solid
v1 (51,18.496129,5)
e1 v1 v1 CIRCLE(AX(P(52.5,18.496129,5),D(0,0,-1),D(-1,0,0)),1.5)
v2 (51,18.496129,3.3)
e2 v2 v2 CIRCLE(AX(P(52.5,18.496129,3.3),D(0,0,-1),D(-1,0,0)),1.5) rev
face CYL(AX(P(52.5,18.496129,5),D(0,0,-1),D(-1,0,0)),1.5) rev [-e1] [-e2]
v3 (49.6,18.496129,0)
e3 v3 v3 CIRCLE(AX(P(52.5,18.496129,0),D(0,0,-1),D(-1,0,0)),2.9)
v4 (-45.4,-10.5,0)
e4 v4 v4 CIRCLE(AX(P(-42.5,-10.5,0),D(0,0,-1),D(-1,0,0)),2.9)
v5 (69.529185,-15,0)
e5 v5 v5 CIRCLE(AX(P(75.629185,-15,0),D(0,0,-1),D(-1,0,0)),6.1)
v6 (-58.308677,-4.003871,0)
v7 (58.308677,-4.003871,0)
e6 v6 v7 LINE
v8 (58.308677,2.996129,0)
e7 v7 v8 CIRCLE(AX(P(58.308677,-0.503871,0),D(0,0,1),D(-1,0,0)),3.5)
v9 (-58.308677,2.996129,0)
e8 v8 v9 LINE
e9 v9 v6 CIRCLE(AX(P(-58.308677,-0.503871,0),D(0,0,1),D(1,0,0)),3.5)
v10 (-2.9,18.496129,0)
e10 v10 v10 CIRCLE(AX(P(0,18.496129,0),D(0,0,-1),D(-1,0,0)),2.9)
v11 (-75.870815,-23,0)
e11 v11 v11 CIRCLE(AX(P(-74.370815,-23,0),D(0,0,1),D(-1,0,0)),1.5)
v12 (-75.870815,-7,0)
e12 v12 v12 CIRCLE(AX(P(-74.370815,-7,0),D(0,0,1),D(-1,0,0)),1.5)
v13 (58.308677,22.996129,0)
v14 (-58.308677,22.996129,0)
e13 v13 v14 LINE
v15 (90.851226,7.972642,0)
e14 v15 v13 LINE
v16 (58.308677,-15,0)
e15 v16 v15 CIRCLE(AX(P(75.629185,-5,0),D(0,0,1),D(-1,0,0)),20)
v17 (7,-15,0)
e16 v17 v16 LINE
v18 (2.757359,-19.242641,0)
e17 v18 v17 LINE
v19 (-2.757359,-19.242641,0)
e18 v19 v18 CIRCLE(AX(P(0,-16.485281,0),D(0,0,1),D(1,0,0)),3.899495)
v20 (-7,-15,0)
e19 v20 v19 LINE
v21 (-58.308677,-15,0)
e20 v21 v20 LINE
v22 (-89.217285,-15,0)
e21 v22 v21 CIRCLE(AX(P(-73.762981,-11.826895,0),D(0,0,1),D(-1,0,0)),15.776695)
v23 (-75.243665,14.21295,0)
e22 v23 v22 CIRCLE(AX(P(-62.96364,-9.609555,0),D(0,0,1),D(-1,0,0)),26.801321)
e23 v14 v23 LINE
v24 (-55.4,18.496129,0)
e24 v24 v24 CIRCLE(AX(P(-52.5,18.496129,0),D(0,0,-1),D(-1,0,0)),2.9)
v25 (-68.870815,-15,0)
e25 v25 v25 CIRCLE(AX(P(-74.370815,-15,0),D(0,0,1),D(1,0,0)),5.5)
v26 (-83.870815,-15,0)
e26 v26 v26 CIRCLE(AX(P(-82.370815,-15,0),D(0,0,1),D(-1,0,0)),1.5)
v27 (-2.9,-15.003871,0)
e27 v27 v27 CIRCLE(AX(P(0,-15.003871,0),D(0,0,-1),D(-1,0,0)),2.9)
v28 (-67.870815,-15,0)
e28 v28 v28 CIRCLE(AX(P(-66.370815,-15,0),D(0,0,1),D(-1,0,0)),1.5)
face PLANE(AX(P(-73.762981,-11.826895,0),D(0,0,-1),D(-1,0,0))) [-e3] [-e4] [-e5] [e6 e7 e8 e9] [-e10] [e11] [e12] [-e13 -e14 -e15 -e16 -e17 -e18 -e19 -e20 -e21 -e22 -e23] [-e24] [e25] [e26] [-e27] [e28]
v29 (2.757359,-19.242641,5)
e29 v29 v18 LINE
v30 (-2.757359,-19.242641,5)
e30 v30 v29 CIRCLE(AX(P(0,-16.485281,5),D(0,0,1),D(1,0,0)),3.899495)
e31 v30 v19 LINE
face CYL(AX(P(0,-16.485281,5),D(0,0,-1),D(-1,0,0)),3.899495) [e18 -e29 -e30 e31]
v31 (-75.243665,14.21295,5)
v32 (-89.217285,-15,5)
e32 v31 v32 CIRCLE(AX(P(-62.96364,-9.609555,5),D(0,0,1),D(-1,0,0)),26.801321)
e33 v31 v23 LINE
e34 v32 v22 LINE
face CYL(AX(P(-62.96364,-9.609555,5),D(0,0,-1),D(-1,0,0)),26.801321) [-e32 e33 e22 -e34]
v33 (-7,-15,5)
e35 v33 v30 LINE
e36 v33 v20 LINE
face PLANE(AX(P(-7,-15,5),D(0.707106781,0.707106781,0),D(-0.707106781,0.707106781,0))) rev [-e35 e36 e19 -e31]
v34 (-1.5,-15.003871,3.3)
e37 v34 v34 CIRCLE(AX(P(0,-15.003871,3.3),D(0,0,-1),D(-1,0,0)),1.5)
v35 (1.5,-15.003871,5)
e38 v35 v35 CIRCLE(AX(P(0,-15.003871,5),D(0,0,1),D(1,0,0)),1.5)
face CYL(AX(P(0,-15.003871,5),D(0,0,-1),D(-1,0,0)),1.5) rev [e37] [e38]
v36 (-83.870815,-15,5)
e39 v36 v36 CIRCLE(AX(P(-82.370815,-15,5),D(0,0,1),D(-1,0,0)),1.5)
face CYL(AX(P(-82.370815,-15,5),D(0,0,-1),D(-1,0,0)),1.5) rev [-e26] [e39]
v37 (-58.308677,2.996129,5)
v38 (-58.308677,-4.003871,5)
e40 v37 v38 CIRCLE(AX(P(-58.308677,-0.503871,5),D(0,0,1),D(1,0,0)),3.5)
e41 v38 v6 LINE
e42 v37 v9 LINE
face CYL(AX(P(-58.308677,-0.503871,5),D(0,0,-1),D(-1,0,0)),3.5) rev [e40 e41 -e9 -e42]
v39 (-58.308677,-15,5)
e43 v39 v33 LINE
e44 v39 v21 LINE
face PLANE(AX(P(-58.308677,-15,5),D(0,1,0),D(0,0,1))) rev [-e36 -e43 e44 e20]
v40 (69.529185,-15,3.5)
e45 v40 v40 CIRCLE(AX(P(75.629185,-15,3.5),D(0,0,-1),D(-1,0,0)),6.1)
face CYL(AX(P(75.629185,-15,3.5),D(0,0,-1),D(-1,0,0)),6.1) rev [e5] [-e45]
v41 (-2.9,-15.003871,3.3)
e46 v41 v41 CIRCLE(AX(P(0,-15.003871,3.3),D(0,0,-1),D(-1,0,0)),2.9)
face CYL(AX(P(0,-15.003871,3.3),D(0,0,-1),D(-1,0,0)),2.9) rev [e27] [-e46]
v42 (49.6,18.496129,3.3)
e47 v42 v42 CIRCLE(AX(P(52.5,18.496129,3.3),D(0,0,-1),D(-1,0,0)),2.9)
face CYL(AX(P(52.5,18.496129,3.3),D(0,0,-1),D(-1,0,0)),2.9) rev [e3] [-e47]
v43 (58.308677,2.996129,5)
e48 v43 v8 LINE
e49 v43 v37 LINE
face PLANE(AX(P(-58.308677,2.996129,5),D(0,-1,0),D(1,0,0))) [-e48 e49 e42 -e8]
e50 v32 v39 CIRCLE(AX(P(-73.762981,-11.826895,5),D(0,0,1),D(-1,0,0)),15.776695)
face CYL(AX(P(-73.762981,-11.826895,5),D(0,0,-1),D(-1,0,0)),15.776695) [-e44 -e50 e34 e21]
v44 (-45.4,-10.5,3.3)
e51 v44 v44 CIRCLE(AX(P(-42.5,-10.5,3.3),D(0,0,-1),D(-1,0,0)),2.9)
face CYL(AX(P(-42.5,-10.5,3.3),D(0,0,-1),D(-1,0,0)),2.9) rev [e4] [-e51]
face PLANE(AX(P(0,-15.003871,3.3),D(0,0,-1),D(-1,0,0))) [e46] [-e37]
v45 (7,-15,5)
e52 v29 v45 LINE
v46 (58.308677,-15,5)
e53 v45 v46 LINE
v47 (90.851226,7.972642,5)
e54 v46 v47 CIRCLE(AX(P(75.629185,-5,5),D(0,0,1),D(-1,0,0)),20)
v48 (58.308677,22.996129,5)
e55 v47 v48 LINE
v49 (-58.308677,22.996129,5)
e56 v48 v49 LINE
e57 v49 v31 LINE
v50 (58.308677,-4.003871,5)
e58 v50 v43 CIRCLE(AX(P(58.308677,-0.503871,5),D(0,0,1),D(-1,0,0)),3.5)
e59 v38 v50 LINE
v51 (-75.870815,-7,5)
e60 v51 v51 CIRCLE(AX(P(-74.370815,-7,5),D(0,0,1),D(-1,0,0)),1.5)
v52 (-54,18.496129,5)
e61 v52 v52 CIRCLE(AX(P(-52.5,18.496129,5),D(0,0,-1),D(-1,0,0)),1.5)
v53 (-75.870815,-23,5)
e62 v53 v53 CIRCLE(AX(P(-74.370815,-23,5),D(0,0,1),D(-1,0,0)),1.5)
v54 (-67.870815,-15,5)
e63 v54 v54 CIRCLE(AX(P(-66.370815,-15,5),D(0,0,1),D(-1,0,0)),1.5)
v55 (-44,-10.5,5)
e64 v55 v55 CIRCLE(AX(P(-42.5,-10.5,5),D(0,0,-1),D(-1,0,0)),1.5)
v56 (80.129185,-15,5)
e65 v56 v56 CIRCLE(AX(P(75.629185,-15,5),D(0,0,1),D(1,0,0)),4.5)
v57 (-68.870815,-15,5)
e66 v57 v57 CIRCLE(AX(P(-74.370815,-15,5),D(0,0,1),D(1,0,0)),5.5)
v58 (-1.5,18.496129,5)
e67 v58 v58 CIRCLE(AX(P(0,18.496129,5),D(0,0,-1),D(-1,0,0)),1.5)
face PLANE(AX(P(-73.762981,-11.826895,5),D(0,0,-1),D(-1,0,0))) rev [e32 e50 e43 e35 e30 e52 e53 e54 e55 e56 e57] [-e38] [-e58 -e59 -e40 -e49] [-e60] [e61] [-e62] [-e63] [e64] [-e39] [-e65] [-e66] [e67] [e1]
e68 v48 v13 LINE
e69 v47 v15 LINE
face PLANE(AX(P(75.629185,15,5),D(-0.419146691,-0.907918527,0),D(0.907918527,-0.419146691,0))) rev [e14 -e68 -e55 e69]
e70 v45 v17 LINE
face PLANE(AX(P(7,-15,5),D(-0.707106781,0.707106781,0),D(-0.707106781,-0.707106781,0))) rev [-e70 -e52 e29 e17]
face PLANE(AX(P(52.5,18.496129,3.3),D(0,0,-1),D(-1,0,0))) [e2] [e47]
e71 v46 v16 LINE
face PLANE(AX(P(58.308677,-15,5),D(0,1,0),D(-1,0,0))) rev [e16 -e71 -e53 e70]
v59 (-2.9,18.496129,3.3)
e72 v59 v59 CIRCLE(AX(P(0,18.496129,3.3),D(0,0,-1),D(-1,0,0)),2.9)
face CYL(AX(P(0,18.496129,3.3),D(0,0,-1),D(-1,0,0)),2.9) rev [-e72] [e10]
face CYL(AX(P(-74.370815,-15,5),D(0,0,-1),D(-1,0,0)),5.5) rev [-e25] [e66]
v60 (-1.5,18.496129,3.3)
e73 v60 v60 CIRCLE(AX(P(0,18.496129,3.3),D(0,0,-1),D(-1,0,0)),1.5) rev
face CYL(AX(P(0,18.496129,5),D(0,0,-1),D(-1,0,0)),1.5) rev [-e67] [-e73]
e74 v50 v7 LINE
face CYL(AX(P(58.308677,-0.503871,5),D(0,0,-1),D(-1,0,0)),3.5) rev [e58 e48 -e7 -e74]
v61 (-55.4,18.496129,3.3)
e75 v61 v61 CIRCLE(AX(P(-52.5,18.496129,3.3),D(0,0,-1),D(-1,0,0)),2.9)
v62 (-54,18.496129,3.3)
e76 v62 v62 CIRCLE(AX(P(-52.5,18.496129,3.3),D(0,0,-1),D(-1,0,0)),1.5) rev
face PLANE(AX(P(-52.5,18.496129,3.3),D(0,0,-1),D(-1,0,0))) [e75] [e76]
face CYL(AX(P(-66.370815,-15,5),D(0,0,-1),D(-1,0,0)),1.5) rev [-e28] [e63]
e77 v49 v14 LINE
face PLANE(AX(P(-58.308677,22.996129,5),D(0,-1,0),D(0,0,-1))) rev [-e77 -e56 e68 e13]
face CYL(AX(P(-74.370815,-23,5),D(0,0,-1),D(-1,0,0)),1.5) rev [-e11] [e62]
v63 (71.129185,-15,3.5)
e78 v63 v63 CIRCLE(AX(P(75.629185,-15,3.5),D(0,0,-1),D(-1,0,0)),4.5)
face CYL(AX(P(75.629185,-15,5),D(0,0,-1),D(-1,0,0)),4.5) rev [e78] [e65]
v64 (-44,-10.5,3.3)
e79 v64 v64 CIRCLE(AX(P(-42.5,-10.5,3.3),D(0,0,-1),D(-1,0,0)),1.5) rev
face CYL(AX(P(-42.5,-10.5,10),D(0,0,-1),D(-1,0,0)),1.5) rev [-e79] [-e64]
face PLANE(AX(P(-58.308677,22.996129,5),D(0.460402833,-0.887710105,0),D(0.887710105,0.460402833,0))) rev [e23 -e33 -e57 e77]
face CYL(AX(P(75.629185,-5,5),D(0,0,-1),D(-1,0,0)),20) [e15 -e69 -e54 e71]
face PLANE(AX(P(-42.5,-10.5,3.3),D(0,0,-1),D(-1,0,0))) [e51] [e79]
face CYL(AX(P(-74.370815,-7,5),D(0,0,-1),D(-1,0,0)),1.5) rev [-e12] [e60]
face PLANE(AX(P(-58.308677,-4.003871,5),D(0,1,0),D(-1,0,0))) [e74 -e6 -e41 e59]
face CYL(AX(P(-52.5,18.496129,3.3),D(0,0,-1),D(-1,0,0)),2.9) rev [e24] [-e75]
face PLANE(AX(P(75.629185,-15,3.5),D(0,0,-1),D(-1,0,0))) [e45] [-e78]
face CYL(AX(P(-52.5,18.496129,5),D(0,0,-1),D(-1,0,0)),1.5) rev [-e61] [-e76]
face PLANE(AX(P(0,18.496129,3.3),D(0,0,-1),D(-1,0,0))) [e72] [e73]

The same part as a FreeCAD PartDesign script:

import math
import FreeCAD as App
import Part
import Sketcher
from FreeCAD import Vector

doc = App.newDocument("Part")
body = doc.addObject("PartDesign::Body", "Body")

# Sketch on XY plane
sketch1 = body.newObject("Sketcher::SketchObject", "Sketch")
sketch1.AttachmentSupport = (doc.getObject("XY_Plane"), [""])
sketch1.MapMode = "FlatFace"
sketch1.addGeometry([
    Part.LineSegment(Vector(58.308677, 22.996129, 0), Vector(-58.308677, 22.996129, 0)),  # 0
    Part.LineSegment(Vector(-58.308677, 22.996129, 0), Vector(-75.243665, 14.21295, 0)),  # 1
    Part.ArcOfCircle(Part.Circle(Vector(-62.96364, -9.609555, 0), Vector(0, 0, 1), 26.801321), math.radians(117.270201), math.radians(191.602817)),  # 2
    Part.ArcOfCircle(Part.Circle(Vector(-73.762981, -11.826895, 0), Vector(0, 0, 1), 15.776695), math.radians(-168.397183), math.radians(-11.602817)),  # 3
    Part.LineSegment(Vector(-58.308677, -15, 0), Vector(-7, -15, 0)),  # 4
    Part.LineSegment(Vector(-7, -15, 0), Vector(-2.757359, -19.242641, 0)),  # 5
    Part.ArcOfCircle(Part.Circle(Vector(0, -16.485281, 0), Vector(0, 0, 1), 3.899495), math.radians(-135), math.radians(-45)),  # 6
    Part.LineSegment(Vector(2.757359, -19.242641, 0), Vector(7, -15, 0)),  # 7
    Part.LineSegment(Vector(7, -15, 0), Vector(58.308677, -15, 0)),  # 8
    Part.ArcOfCircle(Part.Circle(Vector(75.629185, -5, 0), Vector(0, 0, 1), 20), math.radians(-150), math.radians(40.438547)),  # 9
    Part.LineSegment(Vector(90.851226, 7.972642, 0), Vector(75.629185, 15, 0)),  # 10
    Part.LineSegment(Vector(75.629185, 15, 0), Vector(58.308677, 22.996129, 0)),  # 11
    Part.Circle(Vector(75.629185, -15, 0), Vector(0, 0, 1), 4.5),  # 12
    Part.Circle(Vector(0, -15.003871, 0), Vector(0, 0, 1), 1.5),  # 13
    Part.Circle(Vector(-74.370815, -23, 0), Vector(0, 0, 1), 1.5),  # 14
    Part.Circle(Vector(-66.370815, -15, 0), Vector(0, 0, 1), 1.5),  # 15
    Part.Circle(Vector(-74.370815, -15, 0), Vector(0, 0, 1), 5.5),  # 16
    Part.Circle(Vector(-82.370815, -15, 0), Vector(0, 0, 1), 1.5),  # 17
    Part.ArcOfCircle(Part.Circle(Vector(-58.308677, -0.503871, 0), Vector(0, 0, 1), 3.5), math.radians(90), math.radians(270)),  # 18
    Part.LineSegment(Vector(-58.308677, 2.996129, 0), Vector(58.308677, 2.996129, 0)),  # 19
    Part.ArcOfCircle(Part.Circle(Vector(58.308677, -0.503871, 0), Vector(0, 0, 1), 3.5), math.radians(-90), math.radians(90)),  # 20
    Part.LineSegment(Vector(58.308677, -4.003871, 0), Vector(-58.308677, -4.003871, 0)),  # 21
    Part.Circle(Vector(-74.370815, -7, 0), Vector(0, 0, 1), 1.5),  # 22
], False)
sketch1.addConstraint([
    Sketcher.Constraint("Coincident", 0, 2, 1, 1),
    Sketcher.Constraint("Coincident", 1, 2, 2, 1),
    Sketcher.Constraint("Coincident", 2, 2, 3, 1),
    Sketcher.Constraint("Coincident", 3, 2, 4, 1),
    Sketcher.Constraint("Coincident", 4, 2, 5, 1),
    Sketcher.Constraint("Coincident", 5, 2, 6, 1),
    Sketcher.Constraint("Coincident", 6, 2, 7, 1),
    Sketcher.Constraint("Coincident", 7, 2, 8, 1),
    Sketcher.Constraint("Coincident", 8, 2, 9, 1),
    Sketcher.Constraint("Coincident", 9, 2, 10, 1),
    Sketcher.Constraint("Coincident", 10, 2, 11, 1),
    Sketcher.Constraint("Coincident", 11, 2, 0, 1),
    Sketcher.Constraint("Coincident", 18, 1, 19, 1),
    Sketcher.Constraint("Coincident", 19, 2, 20, 2),
    Sketcher.Constraint("Coincident", 20, 1, 21, 1),
    Sketcher.Constraint("Coincident", 21, 2, 18, 2),
    Sketcher.Constraint("Horizontal", 0),
    Sketcher.Constraint("Horizontal", 4),
    Sketcher.Constraint("Horizontal", 8),
    Sketcher.Constraint("Horizontal", 19),
    Sketcher.Constraint("Horizontal", 21),
    Sketcher.Constraint("PointOnObject", 6, 3, -2),
    Sketcher.Constraint("PointOnObject", 13, 3, -2),
    Sketcher.Constraint("Diameter", 12, 9.0),
    Sketcher.Constraint("Diameter", 13, 3.0),
    Sketcher.Constraint("Diameter", 14, 3.0),
    Sketcher.Constraint("Diameter", 15, 3.0),
    Sketcher.Constraint("Diameter", 16, 11.0),
    Sketcher.Constraint("Diameter", 17, 3.0),
    Sketcher.Constraint("Diameter", 22, 3.0),
    Sketcher.Constraint("Radius", 9, 20.0),
    Sketcher.Constraint("Radius", 18, 3.5),
    Sketcher.Constraint("Distance", 5, 6.0),
    Sketcher.Constraint("Distance", 7, 6.0),
    Sketcher.Constraint("DistanceY", 9, 3, -1, 1, 5.0),
    Sketcher.Constraint("DistanceY", 12, 3, -1, 1, 15.0),
    Sketcher.Constraint("DistanceY", 14, 3, -1, 1, 23.0),
    Sketcher.Constraint("DistanceY", 15, 3, -1, 1, 15.0),
    Sketcher.Constraint("DistanceY", 16, 3, -1, 1, 15.0),
    Sketcher.Constraint("DistanceY", 17, 3, -1, 1, 15.0),
    Sketcher.Constraint("DistanceY", 22, 3, -1, 1, 7.0),
    Sketcher.Constraint("DistanceY", 2, 2, -1, 1, 15.0),
    Sketcher.Constraint("DistanceY", 3, 2, -1, 1, 15.0),
    Sketcher.Constraint("DistanceX", 4, 2, -1, 1, 7.0),
    Sketcher.Constraint("DistanceX", -1, 1, 7, 2, 7.0),
    Sketcher.Constraint("DistanceY", 7, 2, -1, 1, 15.0),
    Sketcher.Constraint("DistanceY", -1, 1, 10, 2, 15.0),
    Sketcher.Constraint("DistanceX", 14, 3, 12, 3, 150.0),
    Sketcher.Constraint("DistanceX", 14, 3, 15, 3, 8.0),
    Sketcher.Constraint("DistanceX", 16, 3, 15, 3, 8.0),
    Sketcher.Constraint("DistanceX", 17, 3, 16, 3, 8.0),
    Sketcher.Constraint("DistanceX", 22, 3, 15, 3, 8.0),
    Sketcher.Constraint("DistanceY", 19, 2, 11, 2, 20.0),
    Sketcher.Constraint("DistanceY", 13, 3, 20, 3, 14.5),
    Sketcher.Constraint("Radius", 2, 26.801321),
    Sketcher.Constraint("Radius", 3, 15.776695),
    Sketcher.Constraint("Radius", 6, 3.899495),
    Sketcher.Constraint("Distance", 1, 19.077161),
    Sketcher.Constraint("Distance", 11, 19.077161),
    Sketcher.Constraint("DistanceX", 0, 2, 0, 1, 116.617353),
    Sketcher.Constraint("DistanceX", 4, 1, 4, 2, 51.308677),
    Sketcher.Constraint("DistanceX", 8, 1, 8, 2, 51.308677),
    Sketcher.Constraint("DistanceX", 19, 1, 19, 2, 116.617353),
    Sketcher.Constraint("DistanceX", 21, 2, 21, 1, 116.617353),
    Sketcher.Constraint("DistanceX", 2, 3, -1, 1, 62.96364),
    Sketcher.Constraint("DistanceX", 3, 3, -1, 1, 73.762981),
    Sketcher.Constraint("DistanceY", 6, 3, -1, 1, 16.485281),
    Sketcher.Constraint("DistanceY", 13, 3, -1, 1, 15.003871),
    Sketcher.Constraint("DistanceY", -1, 1, 1, 2, 14.21295),
    Sketcher.Constraint("DistanceX", 15, 3, 18, 3, 8.062139),
    Sketcher.Constraint("DistanceX", 20, 3, 9, 3, 17.320508),
    Sketcher.Constraint("DistanceX", 20, 3, 12, 3, 17.320508),
    Sketcher.Constraint("DistanceX", 9, 3, 9, 2, 15.222042),
    Sketcher.Constraint("DistanceX", 22, 3, 18, 1, 16.062139),
    Sketcher.Constraint("DistanceX", 20, 1, 9, 3, 17.320508),
])
pad1 = body.newObject("PartDesign::Pad", "Pad")
pad1.Profile = sketch1
pad1.Length = 5

# Sketch on XY plane
sketch2 = body.newObject("Sketcher::SketchObject", "Sketch001")
sketch2.AttachmentSupport = (doc.getObject("XY_Plane"), [""])
sketch2.MapMode = "FlatFace"
sketch2.addGeometry(Part.Circle(Vector(76, -15, 0), Vector(0, 0, 1), 6), False)
sketch2.addConstraint([
    Sketcher.Constraint("Diameter", 0, 12.2),
    Sketcher.Constraint("DistanceY", 0, 3, -1, 1, 15.0),
    Sketcher.Constraint("DistanceX", -1, 1, 0, 3, 75.629185),
])
pocket1 = body.newObject("PartDesign::Pocket", "Pocket")
pocket1.Profile = sketch2
pocket1.Length = 3.5
pocket1.Reversed = True

# Sketch on XY plane
sketch3 = body.newObject("Sketcher::SketchObject", "Sketch002")
sketch3.AttachmentSupport = (doc.getObject("XY_Plane"), [""])
sketch3.MapMode = "FlatFace"
sketch3.addGeometry([
    Part.Circle(Vector(0, 18.5, 0), Vector(0, 0, 1), 1.5),
    Part.Circle(Vector(-52.5, 18.5, 0), Vector(0, 0, 1), 1.5),
    Part.Circle(Vector(52.5, 18.5, 0), Vector(0, 0, 1), 1.5),
], False)
sketch3.addConstraint([
    Sketcher.Constraint("Equal", 0, 1),
    Sketcher.Constraint("Equal", 1, 2),
    Sketcher.Constraint("Symmetric", 1, 3, 2, 3, -2),
    Sketcher.Constraint("PointOnObject", 0, 3, -2),
    Sketcher.Constraint("Horizontal", 0, 3, 1, 3),
    Sketcher.Constraint("Diameter", 0, 3.0),
    Sketcher.Constraint("DistanceX", 1, 3, 2, 3, 105.0),
    Sketcher.Constraint("DistanceY", -1, 1, 0, 3, 18.496129),
])
pocket2 = body.newObject("PartDesign::Pocket", "Pocket001")
pocket2.Profile = sketch3
pocket2.Length = 5
pocket2.Reversed = True

# Sketch on XY plane
sketch4 = body.newObject("Sketcher::SketchObject", "Sketch003")
sketch4.AttachmentSupport = (doc.getObject("XY_Plane"), [""])
sketch4.MapMode = "FlatFace"
sketch4.addGeometry(Part.Circle(Vector(-42.5, -10.5, 0), Vector(0, 0, 1), 1.5), False)
sketch4.addConstraint([
    Sketcher.Constraint("Diameter", 0, 3.0),
    Sketcher.Constraint("DistanceX", 0, 3, -1, 1, 42.5),
    Sketcher.Constraint("DistanceY", 0, 3, -1, 1, 10.5),
])
pocket3 = body.newObject("PartDesign::Pocket", "Pocket002")
pocket3.Profile = sketch4
pocket3.Length = 10
pocket3.Reversed = True

# Sketch on XY plane
sketch5 = body.newObject("Sketcher::SketchObject", "Sketch004")
sketch5.AttachmentSupport = (doc.getObject("XY_Plane"), [""])
sketch5.MapMode = "FlatFace"
sketch5.addGeometry([
    Part.Circle(Vector(-42.5, -10.5, 0), Vector(0, 0, 1), 2.9),  # 0
    Part.Circle(Vector(0, -15, 0), Vector(0, 0, 1), 2.9),  # 1
    Part.Circle(Vector(0, 18.5, 0), Vector(0, 0, 1), 2.9),  # 2
    Part.Circle(Vector(-52.5, 18.5, 0), Vector(0, 0, 1), 2.9),  # 3
    Part.Circle(Vector(52.5, 18.5, 0), Vector(0, 0, 1), 2.9),  # 4
], False)
sketch5.addConstraint([
    Sketcher.Constraint("Equal", 0, 1),
    Sketcher.Constraint("Equal", 1, 2),
    Sketcher.Constraint("Equal", 2, 3),
    Sketcher.Constraint("Equal", 3, 4),
    Sketcher.Constraint("Symmetric", 3, 3, 4, 3, -2),
    Sketcher.Constraint("PointOnObject", 1, 3, -2),
    Sketcher.Constraint("PointOnObject", 2, 3, -2),
    Sketcher.Constraint("Horizontal", 2, 3, 3, 3),
    Sketcher.Constraint("Diameter", 0, 5.8),
    Sketcher.Constraint("DistanceX", 3, 3, 0, 3, 10.0),
    Sketcher.Constraint("DistanceX", 0, 3, 4, 3, 95.0),
    Sketcher.Constraint("DistanceY", 0, 3, -1, 1, 10.5),
    Sketcher.Constraint("DistanceY", 1, 3, 2, 3, 33.5),
    Sketcher.Constraint("DistanceY", 1, 3, -1, 1, 15.003871),
])
pocket4 = body.newObject("PartDesign::Pocket", "Pocket003")
pocket4.Profile = sketch5
pocket4.Length = 3.3
pocket4.Reversed = True

doc.recompute()
